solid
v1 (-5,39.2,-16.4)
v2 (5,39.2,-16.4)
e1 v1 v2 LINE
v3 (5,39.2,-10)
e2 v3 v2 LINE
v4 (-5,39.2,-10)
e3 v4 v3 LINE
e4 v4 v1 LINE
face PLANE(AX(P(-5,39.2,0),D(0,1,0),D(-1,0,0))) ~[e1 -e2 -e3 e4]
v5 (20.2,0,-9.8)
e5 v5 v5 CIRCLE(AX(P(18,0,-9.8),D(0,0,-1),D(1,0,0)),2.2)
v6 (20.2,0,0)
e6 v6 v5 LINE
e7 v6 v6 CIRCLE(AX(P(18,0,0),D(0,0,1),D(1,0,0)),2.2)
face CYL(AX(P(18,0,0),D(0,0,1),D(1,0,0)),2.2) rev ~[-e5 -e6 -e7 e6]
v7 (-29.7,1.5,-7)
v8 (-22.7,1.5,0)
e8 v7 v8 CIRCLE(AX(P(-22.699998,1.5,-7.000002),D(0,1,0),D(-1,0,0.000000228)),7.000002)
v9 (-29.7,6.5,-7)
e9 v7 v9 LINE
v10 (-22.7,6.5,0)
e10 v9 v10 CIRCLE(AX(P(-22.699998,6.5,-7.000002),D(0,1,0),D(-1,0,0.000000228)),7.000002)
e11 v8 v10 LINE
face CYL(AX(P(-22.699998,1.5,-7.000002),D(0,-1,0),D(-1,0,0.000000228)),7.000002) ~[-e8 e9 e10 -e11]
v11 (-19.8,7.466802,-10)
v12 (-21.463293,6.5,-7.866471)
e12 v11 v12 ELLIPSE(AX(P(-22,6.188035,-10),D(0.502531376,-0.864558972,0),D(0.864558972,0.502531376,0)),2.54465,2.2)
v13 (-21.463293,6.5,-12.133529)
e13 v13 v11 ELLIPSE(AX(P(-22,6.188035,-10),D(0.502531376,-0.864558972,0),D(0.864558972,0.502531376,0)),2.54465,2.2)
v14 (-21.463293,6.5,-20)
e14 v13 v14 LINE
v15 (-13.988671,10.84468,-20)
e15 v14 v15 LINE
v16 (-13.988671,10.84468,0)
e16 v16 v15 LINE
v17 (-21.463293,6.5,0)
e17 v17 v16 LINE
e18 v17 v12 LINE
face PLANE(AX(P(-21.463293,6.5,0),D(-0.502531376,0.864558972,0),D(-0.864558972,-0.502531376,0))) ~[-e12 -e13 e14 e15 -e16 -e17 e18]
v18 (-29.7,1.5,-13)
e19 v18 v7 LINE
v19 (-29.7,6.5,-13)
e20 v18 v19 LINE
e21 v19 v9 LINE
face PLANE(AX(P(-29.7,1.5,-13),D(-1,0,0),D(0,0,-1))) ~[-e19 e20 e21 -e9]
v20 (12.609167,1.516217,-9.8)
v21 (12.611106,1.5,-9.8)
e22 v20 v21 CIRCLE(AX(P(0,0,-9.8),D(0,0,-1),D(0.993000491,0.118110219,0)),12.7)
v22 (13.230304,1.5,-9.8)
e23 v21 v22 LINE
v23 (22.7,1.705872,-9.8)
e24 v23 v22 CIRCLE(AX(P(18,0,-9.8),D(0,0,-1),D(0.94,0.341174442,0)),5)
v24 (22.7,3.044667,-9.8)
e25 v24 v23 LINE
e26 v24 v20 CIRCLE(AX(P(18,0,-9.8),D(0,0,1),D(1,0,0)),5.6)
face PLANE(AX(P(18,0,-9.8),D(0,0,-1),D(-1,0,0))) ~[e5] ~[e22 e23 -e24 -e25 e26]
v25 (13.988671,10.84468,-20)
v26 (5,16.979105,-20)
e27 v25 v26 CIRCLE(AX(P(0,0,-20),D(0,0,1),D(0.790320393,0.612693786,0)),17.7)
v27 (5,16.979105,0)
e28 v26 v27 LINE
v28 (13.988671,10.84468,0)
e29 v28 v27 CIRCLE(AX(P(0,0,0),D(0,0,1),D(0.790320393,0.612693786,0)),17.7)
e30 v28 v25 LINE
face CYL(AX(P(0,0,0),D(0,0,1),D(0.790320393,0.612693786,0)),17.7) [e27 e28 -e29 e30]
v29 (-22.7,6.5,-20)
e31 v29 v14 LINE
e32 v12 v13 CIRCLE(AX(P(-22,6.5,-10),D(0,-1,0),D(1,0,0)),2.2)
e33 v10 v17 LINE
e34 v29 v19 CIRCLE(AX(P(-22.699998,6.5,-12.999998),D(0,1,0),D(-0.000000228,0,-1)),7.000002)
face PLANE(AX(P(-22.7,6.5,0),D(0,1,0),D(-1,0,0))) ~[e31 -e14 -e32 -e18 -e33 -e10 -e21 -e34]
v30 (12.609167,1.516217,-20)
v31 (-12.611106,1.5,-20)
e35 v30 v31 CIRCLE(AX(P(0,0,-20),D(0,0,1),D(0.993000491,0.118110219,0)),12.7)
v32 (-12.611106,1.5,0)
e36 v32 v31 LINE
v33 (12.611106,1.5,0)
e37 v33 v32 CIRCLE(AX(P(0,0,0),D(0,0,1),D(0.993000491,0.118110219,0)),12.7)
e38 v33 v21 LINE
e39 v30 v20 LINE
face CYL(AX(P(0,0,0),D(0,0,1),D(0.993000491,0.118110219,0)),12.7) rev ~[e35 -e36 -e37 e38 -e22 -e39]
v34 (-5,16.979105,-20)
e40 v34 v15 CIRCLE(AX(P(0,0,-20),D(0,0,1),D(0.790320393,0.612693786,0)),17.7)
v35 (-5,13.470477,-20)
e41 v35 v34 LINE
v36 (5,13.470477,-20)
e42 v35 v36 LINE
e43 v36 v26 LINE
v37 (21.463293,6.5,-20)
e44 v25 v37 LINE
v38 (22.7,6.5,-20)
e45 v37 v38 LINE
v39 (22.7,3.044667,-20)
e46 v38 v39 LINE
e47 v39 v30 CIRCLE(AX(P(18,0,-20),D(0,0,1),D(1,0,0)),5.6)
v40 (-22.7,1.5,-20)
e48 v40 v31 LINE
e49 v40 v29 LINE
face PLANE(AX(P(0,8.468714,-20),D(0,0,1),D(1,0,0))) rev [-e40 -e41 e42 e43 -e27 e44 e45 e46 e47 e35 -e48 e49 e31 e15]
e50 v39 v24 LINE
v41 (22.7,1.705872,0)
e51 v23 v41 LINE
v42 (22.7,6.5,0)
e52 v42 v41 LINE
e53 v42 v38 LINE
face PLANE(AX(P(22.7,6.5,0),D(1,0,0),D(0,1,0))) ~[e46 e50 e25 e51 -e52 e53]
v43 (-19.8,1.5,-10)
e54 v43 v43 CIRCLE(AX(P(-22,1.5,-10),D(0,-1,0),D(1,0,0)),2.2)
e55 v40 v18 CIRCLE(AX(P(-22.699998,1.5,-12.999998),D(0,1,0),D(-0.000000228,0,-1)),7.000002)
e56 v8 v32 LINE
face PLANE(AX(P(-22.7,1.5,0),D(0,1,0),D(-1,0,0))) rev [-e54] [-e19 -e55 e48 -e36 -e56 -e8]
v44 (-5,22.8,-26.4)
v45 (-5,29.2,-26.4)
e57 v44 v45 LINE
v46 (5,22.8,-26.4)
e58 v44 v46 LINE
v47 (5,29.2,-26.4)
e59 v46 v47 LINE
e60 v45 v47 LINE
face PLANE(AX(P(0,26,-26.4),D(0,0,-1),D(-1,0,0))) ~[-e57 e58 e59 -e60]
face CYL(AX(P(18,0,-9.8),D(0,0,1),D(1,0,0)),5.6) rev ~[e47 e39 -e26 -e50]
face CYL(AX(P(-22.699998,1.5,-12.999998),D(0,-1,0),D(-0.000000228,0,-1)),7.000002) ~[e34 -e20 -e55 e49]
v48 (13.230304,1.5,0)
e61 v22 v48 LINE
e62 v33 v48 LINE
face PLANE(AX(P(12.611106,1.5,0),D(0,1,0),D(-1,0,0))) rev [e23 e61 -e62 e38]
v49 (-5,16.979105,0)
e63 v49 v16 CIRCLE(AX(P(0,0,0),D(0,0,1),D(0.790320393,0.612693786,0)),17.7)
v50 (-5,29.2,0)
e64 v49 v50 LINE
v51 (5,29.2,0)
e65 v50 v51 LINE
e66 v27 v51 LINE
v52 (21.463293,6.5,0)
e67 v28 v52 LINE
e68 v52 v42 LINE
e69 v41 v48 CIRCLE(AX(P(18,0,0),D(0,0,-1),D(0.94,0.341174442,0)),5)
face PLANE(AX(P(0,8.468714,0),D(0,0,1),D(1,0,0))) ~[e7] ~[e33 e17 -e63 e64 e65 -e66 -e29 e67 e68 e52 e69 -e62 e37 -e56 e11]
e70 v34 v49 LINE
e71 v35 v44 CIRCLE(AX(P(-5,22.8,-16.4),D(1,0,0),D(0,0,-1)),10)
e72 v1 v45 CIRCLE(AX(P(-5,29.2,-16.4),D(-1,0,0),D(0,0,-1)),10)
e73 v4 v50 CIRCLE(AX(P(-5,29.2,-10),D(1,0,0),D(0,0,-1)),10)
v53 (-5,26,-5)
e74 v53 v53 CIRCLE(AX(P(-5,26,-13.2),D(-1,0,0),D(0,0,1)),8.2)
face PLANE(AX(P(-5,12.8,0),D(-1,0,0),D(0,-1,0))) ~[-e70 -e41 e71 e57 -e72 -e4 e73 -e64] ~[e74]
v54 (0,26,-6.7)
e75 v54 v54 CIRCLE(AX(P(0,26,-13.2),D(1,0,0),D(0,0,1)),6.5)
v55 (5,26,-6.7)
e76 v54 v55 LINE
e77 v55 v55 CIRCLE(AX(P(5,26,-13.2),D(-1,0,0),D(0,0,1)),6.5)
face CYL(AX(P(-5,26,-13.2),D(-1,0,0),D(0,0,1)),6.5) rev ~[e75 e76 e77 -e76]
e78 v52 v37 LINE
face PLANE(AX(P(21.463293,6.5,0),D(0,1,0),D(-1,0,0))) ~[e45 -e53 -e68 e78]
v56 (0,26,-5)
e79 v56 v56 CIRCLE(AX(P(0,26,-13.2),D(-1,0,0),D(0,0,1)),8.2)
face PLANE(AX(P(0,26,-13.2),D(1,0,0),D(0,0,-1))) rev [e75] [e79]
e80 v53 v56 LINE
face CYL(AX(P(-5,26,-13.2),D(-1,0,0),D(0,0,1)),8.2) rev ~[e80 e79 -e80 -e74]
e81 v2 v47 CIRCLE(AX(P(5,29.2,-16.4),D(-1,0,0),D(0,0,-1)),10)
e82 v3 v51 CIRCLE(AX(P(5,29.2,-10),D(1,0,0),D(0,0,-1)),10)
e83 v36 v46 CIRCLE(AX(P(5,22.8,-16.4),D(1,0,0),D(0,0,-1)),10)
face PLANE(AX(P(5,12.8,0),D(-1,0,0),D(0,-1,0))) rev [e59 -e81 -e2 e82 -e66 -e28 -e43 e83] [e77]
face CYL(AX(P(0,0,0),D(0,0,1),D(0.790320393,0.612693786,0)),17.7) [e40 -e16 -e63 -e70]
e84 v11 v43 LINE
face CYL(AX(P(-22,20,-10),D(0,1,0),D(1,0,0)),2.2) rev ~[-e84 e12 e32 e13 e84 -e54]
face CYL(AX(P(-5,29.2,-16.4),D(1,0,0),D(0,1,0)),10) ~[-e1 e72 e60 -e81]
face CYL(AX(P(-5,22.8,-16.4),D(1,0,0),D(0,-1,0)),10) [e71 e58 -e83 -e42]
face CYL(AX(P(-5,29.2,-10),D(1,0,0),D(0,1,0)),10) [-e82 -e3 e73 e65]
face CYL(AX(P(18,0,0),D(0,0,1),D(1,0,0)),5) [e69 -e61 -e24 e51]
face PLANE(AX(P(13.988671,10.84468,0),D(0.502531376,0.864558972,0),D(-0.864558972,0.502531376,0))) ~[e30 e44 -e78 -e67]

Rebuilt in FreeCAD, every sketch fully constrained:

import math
import FreeCAD as App
import Part
import Sketcher

V = App.Vector


def edges_at(feature, points):
    """Names of the edges that pass closest to the given points."""
    edges = feature.Shape.Edges
    near = lambda p: min(range(len(edges)), key=lambda i: edges[i].distToShape(Part.Vertex(*p))[0])
    return sorted({f"Edge{near(p) + 1}" for p in points})


def add_polygon(sketch, points):
    """Adds a closed chain of lines whose ends are joined by coincident constraints."""
    first, n = sketch.GeometryCount, len(points)
    for a, b in zip(points, points[1:] + points[:1]):
        sketch.addGeometry(Part.LineSegment(App.Vector(*a, 0), App.Vector(*b, 0)), False)
    for i in range(n):
        sketch.addConstraint(Sketcher.Constraint("Coincident", first + i, 2, first + (i + 1) % n, 1))

doc = App.newDocument("Part")
body = doc.addObject("PartDesign::Body", "Body")

# Sketch on YZ plane
sketch1 = doc.addObject("Sketcher::SketchObject", "Sketch")
body.addObject(sketch1)
sketch1.AttachmentSupport = (doc.YZ_Plane, [""])
sketch1.MapMode = "FlatFace"
sketch1.addGeometry(Part.Circle(V(0, 0, 0), V(0, 0, 1), 6), False)
sketch1.addConstraint(Sketcher.Constraint("Coincident", 0, 3, -1, 1))
sketch1.addConstraint(Sketcher.Constraint("Diameter", 0, 13.0))
pad1 = doc.addObject("PartDesign::Pad", "Pad")
body.addObject(pad1)
pad1.Profile = sketch1
pad1.Length = 10
body2 = doc.addObject("PartDesign::Body", "Body001")

# Sketch on YZ plane
sketch2 = doc.addObject("Sketcher::SketchObject", "Sketch001")
body2.addObject(sketch2)
sketch2.AttachmentSupport = (doc.getObject("YZ_Plane001"), [""])
sketch2.MapMode = "FlatFace"
sketch2.addGeometry(Part.Circle(V(0, 0, 0), V(0, 0, 1), 8), False)
sketch2.addConstraint(Sketcher.Constraint("Coincident", 0, 3, -1, 1))
sketch2.addConstraint(Sketcher.Constraint("Diameter", 0, 16.4))
pad2 = doc.addObject("PartDesign::Pad", "Pad001")
body2.addObject(pad2)
pad2.Profile = sketch2
pad2.Length = 5
doc.recompute()

boolean = doc.addObject("PartDesign::Boolean", "Boolean")
body2.addObject(boolean)
boolean.Type = "Fuse"
boolean.addObjects([body])
body3 = doc.addObject("PartDesign::Body", "Body002")

# Sketch on XY plane
sketch3 = doc.addObject("Sketcher::SketchObject", "Sketch002")
body3.addObject(sketch3)
sketch3.AttachmentSupport = (doc.getObject("XY_Plane002"), [""])
sketch3.MapMode = "FlatFace"
sketch3.AttachmentOffset = App.Placement(V(0, 0, -13.2), App.Rotation())
add_polygon(sketch3, [(0, 13), (0, -13), (10, -13), (10, 13)])  # lines 0-3
sketch3.addConstraint(Sketcher.Constraint("Vertical", 0))
sketch3.addConstraint(Sketcher.Constraint("Horizontal", 1))
sketch3.addConstraint(Sketcher.Constraint("Vertical", 2))
sketch3.addConstraint(Sketcher.Constraint("Horizontal", 3))
sketch3.addConstraint(Sketcher.Constraint("Symmetric", 0, 2, 3, 2, -1, 1))
sketch3.addConstraint(Sketcher.Constraint("DistanceX", 1, 1, 1, 2, 10.0))
sketch3.addConstraint(Sketcher.Constraint("DistanceY", 0, 2, 0, 1, 26.4))
pad3 = doc.addObject("PartDesign::Pad", "Pad002")
body3.addObject(pad3)
pad3.Profile = sketch3
pad3.Length = 26.4
doc.recompute()

fillet = doc.addObject("PartDesign::Fillet", "Fillet")
body3.addObject(fillet)
fillet.Base = (pad3, edges_at(pad3, [(5, -13.2, 13.2), (5, 13.2, -13.2), (5, 13.2, 13.2)]))
fillet.Radius = 10
doc.recompute()

boolean2 = doc.addObject("PartDesign::Boolean", "Boolean001")
body3.addObject(boolean2)
boolean2.Type = "Cut"
boolean2.addObjects([body2])
body4 = doc.addObject("PartDesign::Body", "Body003")
doc.recompute()

body3.Placement = App.Placement(V(-5, 26, 13.2), App.Rotation(V(0, 0, 1), 0))
boolean3 = doc.addObject("PartDesign::Boolean", "Boolean002")
body4.addObject(boolean3)
boolean3.Type = "Fuse"
boolean3.addObjects([body3])
body5 = doc.addObject("PartDesign::Body", "Body004")

# Sketch on XY plane
sketch4 = doc.addObject("Sketcher::SketchObject", "Sketch003")
body5.addObject(sketch4)
sketch4.AttachmentSupport = (doc.getObject("XY_Plane004"), [""])
sketch4.MapMode = "FlatFace"
sketch4.AttachmentOffset = App.Placement(V(0, 0, 9.8), App.Rotation())
sketch4.addGeometry(Part.Circle(V(18, 0, 0), V(0, 0, 1), 6), False)
sketch4.addConstraint(Sketcher.Constraint("PointOnObject", 0, 3, -1))
sketch4.addConstraint(Sketcher.Constraint("Diameter", 0, 11.2))
sketch4.addConstraint(Sketcher.Constraint("DistanceX", -1, 1, 0, 3, 18.0))
pad4 = doc.addObject("PartDesign::Pad", "Pad003")
body5.addObject(pad4)
pad4.Profile = sketch4
pad4.Length = 10.2
body6 = doc.addObject("PartDesign::Body", "Body005")

# Sketch on XY plane
sketch5 = doc.addObject("Sketcher::SketchObject", "Sketch004")
body6.addObject(sketch5)
sketch5.AttachmentSupport = (doc.getObject("XY_Plane005"), [""])
sketch5.MapMode = "FlatFace"
sketch5.addGeometry(Part.Circle(V(18, 0, 0), V(0, 0, 1), 2.2), False)
sketch5.addConstraint(Sketcher.Constraint("PointOnObject", 0, 3, -1))
sketch5.addConstraint(Sketcher.Constraint("Diameter", 0, 4.4))
sketch5.addConstraint(Sketcher.Constraint("DistanceX", -1, 1, 0, 3, 18.0))
pad5 = doc.addObject("PartDesign::Pad", "Pad004")
body6.addObject(pad5)
pad5.Profile = sketch5
pad5.Length = 20
body7 = doc.addObject("PartDesign::Body", "Body006")
body7.AllowCompound = True

# Sketch on XZ plane
sketch6 = doc.addObject("Sketcher::SketchObject", "Sketch005")
body7.addObject(sketch6)
sketch6.AttachmentSupport = (doc.getObject("XZ_Plane006"), [""])
sketch6.MapMode = "FlatFace"
sketch6.AttachmentOffset = App.Placement(V(0, 0, -20), App.Rotation())
sketch6.addGeometry(Part.Circle(V(-22, 10, 0), V(0, 0, 1), 2.2), False)
sketch6.addConstraint(Sketcher.Constraint("Diameter", 0, 4.4))
sketch6.addConstraint(Sketcher.Constraint("DistanceX", 0, 3, -1, 1, 22.0))
sketch6.addConstraint(Sketcher.Constraint("DistanceY", -1, 1, 0, 3, 10.0))
pad6 = doc.addObject("PartDesign::Pad", "Pad005")
body7.addObject(pad6)
pad6.Profile = sketch6
pad6.Length = 20
doc.recompute()

boolean4 = doc.addObject("PartDesign::Boolean", "Boolean003")
body7.addObject(boolean4)
boolean4.Type = "Fuse"
boolean4.addObjects([body5])
doc.recompute()

boolean5 = doc.addObject("PartDesign::Boolean", "Boolean004")
body7.addObject(boolean5)
boolean5.Type = "Fuse"
boolean5.addObjects([body6])
body8 = doc.addObject("PartDesign::Body", "Body007")

# Sketch on XY plane
sketch7 = doc.addObject("Sketcher::SketchObject", "Sketch006")
body8.addObject(sketch7)
sketch7.AttachmentSupport = (doc.getObject("XY_Plane007"), [""])
sketch7.MapMode = "FlatFace"
sketch7.addGeometry(Part.ArcOfCircle(Part.Circle(V(0, 0, 0), V(0, 0, 1), 12.7), math.radians(7), math.radians(173)), False)
sketch7.addGeometry(Part.LineSegment(V(12.6, 1.5, 0), V(22.7, 1.5, 0)), False)
sketch7.addGeometry(Part.LineSegment(V(22.7, 1.5, 0), V(22.7, 6.5, 0)), False)
sketch7.addGeometry(Part.LineSegment(V(22.7, 6.5, 0), V(21.5, 6.5, 0)), False)
sketch7.addGeometry(Part.LineSegment(V(21.5, 6.5, 0), V(14, 10.8, 0)), False)
sketch7.addGeometry(Part.ArcOfCircle(Part.Circle(V(0, 0, 0), V(0, 0, 1), 17.7), math.radians(38), math.radians(142)), False)
sketch7.addGeometry(Part.LineSegment(V(-14, 10.8, 0), V(-21.5, 6.5, 0)), False)
sketch7.addGeometry(Part.LineSegment(V(-21.5, 6.5, 0), V(-22.7, 6.5, 0)), False)
sketch7.addGeometry(Part.LineSegment(V(-22.7, 6.5, 0), V(-22.7, 1.5, 0)), False)
sketch7.addGeometry(Part.LineSegment(V(-22.7, 1.5, 0), V(-12.6, 1.5, 0)), False)
sketch7.addConstraint(Sketcher.Constraint("Coincident", 0, 1, 1, 1))
sketch7.addConstraint(Sketcher.Constraint("Coincident", 1, 2, 2, 1))
sketch7.addConstraint(Sketcher.Constraint("Coincident", 2, 2, 3, 1))
sketch7.addConstraint(Sketcher.Constraint("Coincident", 3, 2, 4, 1))
sketch7.addConstraint(Sketcher.Constraint("Coincident", 4, 2, 5, 1))
sketch7.addConstraint(Sketcher.Constraint("Coincident", 5, 2, 6, 1))
sketch7.addConstraint(Sketcher.Constraint("Coincident", 6, 2, 7, 1))
sketch7.addConstraint(Sketcher.Constraint("Coincident", 7, 2, 8, 1))
sketch7.addConstraint(Sketcher.Constraint("Coincident", 8, 2, 9, 1))
sketch7.addConstraint(Sketcher.Constraint("Coincident", 9, 2, 0, 2))
sketch7.addConstraint(Sketcher.Constraint("Horizontal", 1))
sketch7.addConstraint(Sketcher.Constraint("Vertical", 2))
sketch7.addConstraint(Sketcher.Constraint("Horizontal", 3))
sketch7.addConstraint(Sketcher.Constraint("Horizontal", 7))
sketch7.addConstraint(Sketcher.Constraint("Vertical", 8))
sketch7.addConstraint(Sketcher.Constraint("Horizontal", 9))
sketch7.addConstraint(Sketcher.Constraint("Coincident", 0, 3, -1, 1))
sketch7.addConstraint(Sketcher.Constraint("Coincident", 5, 3, -1, 1))
sketch7.addConstraint(Sketcher.Constraint("Symmetric", 3, 2, 6, 2, -2))
sketch7.addConstraint(Sketcher.Constraint("Symmetric", 1, 2, 8, 2, -2))
sketch7.addConstraint(Sketcher.Constraint("Horizontal", 4, 2, 5, 2))
sketch7.addConstraint(Sketcher.Constraint("Radius", 0, 12.7))
sketch7.addConstraint(Sketcher.Constraint("Radius", 5, 17.7))
sketch7.addConstraint(Sketcher.Constraint("DistanceY", 2, 1, 2, 2, 5.0))
sketch7.addConstraint(Sketcher.Constraint("DistanceY", -1, 1, 0, 1, 1.5))
sketch7.addConstraint(Sketcher.Constraint("DistanceX", -1, 1, 1, 2, 22.7))
sketch7.addConstraint(Sketcher.Constraint("DistanceX", 6, 2, 0, 1, 34.074399))
sketch7.addConstraint(Sketcher.Constraint("Distance", 4, 8.64559))
pad7 = doc.addObject("PartDesign::Pad", "Pad006")
body8.addObject(pad7)
pad7.Profile = sketch7
pad7.Length = 20

# Sketch on XZ plane
sketch8 = doc.addObject("Sketcher::SketchObject", "Sketch007")
body8.addObject(sketch8)
sketch8.AttachmentSupport = (doc.getObject("XZ_Plane007"), [""])
sketch8.MapMode = "FlatFace"
sketch8.AttachmentOffset = App.Placement(V(0, 0, -1.5), App.Rotation())
sketch8.addGeometry(Part.LineSegment(V(-13, 20, 0), V(-23, 20, 0)), False)
sketch8.addGeometry(Part.ArcOfCircle(Part.Circle(V(-23, 13, 0), V(0, 0, 1), 7), math.radians(90), math.radians(180)), False)
sketch8.addGeometry(Part.LineSegment(V(-30, 13, 0), V(-30, 7, 0)), False)
sketch8.addGeometry(Part.ArcOfCircle(Part.Circle(V(-23, 7, 0), V(0, 0, 1), 7), math.radians(-180), math.radians(-90)), False)
sketch8.addGeometry(Part.LineSegment(V(-23, 0, 0), V(-13, 0, 0)), False)
sketch8.addGeometry(Part.LineSegment(V(-13, 0, 0), V(-13, 20, 0)), False)
sketch8.addConstraint(Sketcher.Constraint("Tangent", 0, 2, 1, 1))
sketch8.addConstraint(Sketcher.Constraint("Tangent", 1, 2, 2, 1))
sketch8.addConstraint(Sketcher.Constraint("Tangent", 2, 2, 3, 1))
sketch8.addConstraint(Sketcher.Constraint("Tangent", 3, 2, 4, 1))
sketch8.addConstraint(Sketcher.Constraint("Coincident", 4, 2, 5, 1))
sketch8.addConstraint(Sketcher.Constraint("Coincident", 5, 2, 0, 1))
sketch8.addConstraint(Sketcher.Constraint("Horizontal", 0))
sketch8.addConstraint(Sketcher.Constraint("Vertical", 2))
sketch8.addConstraint(Sketcher.Constraint("Horizontal", 4))
sketch8.addConstraint(Sketcher.Constraint("Vertical", 5))
sketch8.addConstraint(Sketcher.Constraint("Equal", 1, 3))
sketch8.addConstraint(Sketcher.Constraint("PointOnObject", 3, 2, -1))
sketch8.addConstraint(Sketcher.Constraint("Radius", 1, 7.000002))
sketch8.addConstraint(Sketcher.Constraint("DistanceY", 2, 2, 2, 1, 6.0))
sketch8.addConstraint(Sketcher.Constraint("DistanceX", 1, 3, -1, 1, 22.699998))
sketch8.addConstraint(Sketcher.Constraint("DistanceX", 0, 2, 0, 1, 10.088894))
pad8 = doc.addObject("PartDesign::Pad", "Pad007")
body8.addObject(pad8)
pad8.Profile = sketch8
pad8.Length = 5
pad8.Reversed = True
body9 = doc.addObject("PartDesign::Body", "Body008")

# Sketch on XY plane
sketch9 = doc.addObject("Sketcher::SketchObject", "Sketch008")
body9.addObject(sketch9)
sketch9.AttachmentSupport = (doc.getObject("XY_Plane008"), [""])
sketch9.MapMode = "FlatFace"
sketch9.addGeometry(Part.Circle(V(18, 0, 0), V(0, 0, 1), 5), False)
sketch9.addConstraint(Sketcher.Constraint("PointOnObject", 0, 3, -1))
sketch9.addConstraint(Sketcher.Constraint("Diameter", 0, 10.0))
sketch9.addConstraint(Sketcher.Constraint("DistanceX", -1, 1, 0, 3, 18.0))
pad9 = doc.addObject("PartDesign::Pad", "Pad008")
body9.addObject(pad9)
pad9.Profile = sketch9
pad9.Length = 9.8
doc.recompute()

boolean6 = doc.addObject("PartDesign::Boolean", "Boolean005")
body9.addObject(boolean6)
boolean6.Type = "Fuse"
boolean6.addObjects([body8])
doc.recompute()

boolean7 = doc.addObject("PartDesign::Boolean", "Boolean006")
body9.addObject(boolean7)
boolean7.Type = "Cut"
boolean7.addObjects([body7])
doc.recompute()

boolean8 = doc.addObject("PartDesign::Boolean", "Boolean007")
body9.addObject(boolean8)
boolean8.Type = "Fuse"
boolean8.addObjects([body4])
body10 = doc.addObject("PartDesign::Body", "Body009")
doc.recompute()

mirroring = doc.addObject("Part::Mirroring", "Mirroring")
mirroring.Source = body9
mirroring.Base = V(0, 0, 0)
mirroring.Normal = V(0, 0, 1)
body10.BaseFeature = mirroring
doc.recompute()
body9.Visibility = False
mirroring.Visibility = False

doc.recompute()
